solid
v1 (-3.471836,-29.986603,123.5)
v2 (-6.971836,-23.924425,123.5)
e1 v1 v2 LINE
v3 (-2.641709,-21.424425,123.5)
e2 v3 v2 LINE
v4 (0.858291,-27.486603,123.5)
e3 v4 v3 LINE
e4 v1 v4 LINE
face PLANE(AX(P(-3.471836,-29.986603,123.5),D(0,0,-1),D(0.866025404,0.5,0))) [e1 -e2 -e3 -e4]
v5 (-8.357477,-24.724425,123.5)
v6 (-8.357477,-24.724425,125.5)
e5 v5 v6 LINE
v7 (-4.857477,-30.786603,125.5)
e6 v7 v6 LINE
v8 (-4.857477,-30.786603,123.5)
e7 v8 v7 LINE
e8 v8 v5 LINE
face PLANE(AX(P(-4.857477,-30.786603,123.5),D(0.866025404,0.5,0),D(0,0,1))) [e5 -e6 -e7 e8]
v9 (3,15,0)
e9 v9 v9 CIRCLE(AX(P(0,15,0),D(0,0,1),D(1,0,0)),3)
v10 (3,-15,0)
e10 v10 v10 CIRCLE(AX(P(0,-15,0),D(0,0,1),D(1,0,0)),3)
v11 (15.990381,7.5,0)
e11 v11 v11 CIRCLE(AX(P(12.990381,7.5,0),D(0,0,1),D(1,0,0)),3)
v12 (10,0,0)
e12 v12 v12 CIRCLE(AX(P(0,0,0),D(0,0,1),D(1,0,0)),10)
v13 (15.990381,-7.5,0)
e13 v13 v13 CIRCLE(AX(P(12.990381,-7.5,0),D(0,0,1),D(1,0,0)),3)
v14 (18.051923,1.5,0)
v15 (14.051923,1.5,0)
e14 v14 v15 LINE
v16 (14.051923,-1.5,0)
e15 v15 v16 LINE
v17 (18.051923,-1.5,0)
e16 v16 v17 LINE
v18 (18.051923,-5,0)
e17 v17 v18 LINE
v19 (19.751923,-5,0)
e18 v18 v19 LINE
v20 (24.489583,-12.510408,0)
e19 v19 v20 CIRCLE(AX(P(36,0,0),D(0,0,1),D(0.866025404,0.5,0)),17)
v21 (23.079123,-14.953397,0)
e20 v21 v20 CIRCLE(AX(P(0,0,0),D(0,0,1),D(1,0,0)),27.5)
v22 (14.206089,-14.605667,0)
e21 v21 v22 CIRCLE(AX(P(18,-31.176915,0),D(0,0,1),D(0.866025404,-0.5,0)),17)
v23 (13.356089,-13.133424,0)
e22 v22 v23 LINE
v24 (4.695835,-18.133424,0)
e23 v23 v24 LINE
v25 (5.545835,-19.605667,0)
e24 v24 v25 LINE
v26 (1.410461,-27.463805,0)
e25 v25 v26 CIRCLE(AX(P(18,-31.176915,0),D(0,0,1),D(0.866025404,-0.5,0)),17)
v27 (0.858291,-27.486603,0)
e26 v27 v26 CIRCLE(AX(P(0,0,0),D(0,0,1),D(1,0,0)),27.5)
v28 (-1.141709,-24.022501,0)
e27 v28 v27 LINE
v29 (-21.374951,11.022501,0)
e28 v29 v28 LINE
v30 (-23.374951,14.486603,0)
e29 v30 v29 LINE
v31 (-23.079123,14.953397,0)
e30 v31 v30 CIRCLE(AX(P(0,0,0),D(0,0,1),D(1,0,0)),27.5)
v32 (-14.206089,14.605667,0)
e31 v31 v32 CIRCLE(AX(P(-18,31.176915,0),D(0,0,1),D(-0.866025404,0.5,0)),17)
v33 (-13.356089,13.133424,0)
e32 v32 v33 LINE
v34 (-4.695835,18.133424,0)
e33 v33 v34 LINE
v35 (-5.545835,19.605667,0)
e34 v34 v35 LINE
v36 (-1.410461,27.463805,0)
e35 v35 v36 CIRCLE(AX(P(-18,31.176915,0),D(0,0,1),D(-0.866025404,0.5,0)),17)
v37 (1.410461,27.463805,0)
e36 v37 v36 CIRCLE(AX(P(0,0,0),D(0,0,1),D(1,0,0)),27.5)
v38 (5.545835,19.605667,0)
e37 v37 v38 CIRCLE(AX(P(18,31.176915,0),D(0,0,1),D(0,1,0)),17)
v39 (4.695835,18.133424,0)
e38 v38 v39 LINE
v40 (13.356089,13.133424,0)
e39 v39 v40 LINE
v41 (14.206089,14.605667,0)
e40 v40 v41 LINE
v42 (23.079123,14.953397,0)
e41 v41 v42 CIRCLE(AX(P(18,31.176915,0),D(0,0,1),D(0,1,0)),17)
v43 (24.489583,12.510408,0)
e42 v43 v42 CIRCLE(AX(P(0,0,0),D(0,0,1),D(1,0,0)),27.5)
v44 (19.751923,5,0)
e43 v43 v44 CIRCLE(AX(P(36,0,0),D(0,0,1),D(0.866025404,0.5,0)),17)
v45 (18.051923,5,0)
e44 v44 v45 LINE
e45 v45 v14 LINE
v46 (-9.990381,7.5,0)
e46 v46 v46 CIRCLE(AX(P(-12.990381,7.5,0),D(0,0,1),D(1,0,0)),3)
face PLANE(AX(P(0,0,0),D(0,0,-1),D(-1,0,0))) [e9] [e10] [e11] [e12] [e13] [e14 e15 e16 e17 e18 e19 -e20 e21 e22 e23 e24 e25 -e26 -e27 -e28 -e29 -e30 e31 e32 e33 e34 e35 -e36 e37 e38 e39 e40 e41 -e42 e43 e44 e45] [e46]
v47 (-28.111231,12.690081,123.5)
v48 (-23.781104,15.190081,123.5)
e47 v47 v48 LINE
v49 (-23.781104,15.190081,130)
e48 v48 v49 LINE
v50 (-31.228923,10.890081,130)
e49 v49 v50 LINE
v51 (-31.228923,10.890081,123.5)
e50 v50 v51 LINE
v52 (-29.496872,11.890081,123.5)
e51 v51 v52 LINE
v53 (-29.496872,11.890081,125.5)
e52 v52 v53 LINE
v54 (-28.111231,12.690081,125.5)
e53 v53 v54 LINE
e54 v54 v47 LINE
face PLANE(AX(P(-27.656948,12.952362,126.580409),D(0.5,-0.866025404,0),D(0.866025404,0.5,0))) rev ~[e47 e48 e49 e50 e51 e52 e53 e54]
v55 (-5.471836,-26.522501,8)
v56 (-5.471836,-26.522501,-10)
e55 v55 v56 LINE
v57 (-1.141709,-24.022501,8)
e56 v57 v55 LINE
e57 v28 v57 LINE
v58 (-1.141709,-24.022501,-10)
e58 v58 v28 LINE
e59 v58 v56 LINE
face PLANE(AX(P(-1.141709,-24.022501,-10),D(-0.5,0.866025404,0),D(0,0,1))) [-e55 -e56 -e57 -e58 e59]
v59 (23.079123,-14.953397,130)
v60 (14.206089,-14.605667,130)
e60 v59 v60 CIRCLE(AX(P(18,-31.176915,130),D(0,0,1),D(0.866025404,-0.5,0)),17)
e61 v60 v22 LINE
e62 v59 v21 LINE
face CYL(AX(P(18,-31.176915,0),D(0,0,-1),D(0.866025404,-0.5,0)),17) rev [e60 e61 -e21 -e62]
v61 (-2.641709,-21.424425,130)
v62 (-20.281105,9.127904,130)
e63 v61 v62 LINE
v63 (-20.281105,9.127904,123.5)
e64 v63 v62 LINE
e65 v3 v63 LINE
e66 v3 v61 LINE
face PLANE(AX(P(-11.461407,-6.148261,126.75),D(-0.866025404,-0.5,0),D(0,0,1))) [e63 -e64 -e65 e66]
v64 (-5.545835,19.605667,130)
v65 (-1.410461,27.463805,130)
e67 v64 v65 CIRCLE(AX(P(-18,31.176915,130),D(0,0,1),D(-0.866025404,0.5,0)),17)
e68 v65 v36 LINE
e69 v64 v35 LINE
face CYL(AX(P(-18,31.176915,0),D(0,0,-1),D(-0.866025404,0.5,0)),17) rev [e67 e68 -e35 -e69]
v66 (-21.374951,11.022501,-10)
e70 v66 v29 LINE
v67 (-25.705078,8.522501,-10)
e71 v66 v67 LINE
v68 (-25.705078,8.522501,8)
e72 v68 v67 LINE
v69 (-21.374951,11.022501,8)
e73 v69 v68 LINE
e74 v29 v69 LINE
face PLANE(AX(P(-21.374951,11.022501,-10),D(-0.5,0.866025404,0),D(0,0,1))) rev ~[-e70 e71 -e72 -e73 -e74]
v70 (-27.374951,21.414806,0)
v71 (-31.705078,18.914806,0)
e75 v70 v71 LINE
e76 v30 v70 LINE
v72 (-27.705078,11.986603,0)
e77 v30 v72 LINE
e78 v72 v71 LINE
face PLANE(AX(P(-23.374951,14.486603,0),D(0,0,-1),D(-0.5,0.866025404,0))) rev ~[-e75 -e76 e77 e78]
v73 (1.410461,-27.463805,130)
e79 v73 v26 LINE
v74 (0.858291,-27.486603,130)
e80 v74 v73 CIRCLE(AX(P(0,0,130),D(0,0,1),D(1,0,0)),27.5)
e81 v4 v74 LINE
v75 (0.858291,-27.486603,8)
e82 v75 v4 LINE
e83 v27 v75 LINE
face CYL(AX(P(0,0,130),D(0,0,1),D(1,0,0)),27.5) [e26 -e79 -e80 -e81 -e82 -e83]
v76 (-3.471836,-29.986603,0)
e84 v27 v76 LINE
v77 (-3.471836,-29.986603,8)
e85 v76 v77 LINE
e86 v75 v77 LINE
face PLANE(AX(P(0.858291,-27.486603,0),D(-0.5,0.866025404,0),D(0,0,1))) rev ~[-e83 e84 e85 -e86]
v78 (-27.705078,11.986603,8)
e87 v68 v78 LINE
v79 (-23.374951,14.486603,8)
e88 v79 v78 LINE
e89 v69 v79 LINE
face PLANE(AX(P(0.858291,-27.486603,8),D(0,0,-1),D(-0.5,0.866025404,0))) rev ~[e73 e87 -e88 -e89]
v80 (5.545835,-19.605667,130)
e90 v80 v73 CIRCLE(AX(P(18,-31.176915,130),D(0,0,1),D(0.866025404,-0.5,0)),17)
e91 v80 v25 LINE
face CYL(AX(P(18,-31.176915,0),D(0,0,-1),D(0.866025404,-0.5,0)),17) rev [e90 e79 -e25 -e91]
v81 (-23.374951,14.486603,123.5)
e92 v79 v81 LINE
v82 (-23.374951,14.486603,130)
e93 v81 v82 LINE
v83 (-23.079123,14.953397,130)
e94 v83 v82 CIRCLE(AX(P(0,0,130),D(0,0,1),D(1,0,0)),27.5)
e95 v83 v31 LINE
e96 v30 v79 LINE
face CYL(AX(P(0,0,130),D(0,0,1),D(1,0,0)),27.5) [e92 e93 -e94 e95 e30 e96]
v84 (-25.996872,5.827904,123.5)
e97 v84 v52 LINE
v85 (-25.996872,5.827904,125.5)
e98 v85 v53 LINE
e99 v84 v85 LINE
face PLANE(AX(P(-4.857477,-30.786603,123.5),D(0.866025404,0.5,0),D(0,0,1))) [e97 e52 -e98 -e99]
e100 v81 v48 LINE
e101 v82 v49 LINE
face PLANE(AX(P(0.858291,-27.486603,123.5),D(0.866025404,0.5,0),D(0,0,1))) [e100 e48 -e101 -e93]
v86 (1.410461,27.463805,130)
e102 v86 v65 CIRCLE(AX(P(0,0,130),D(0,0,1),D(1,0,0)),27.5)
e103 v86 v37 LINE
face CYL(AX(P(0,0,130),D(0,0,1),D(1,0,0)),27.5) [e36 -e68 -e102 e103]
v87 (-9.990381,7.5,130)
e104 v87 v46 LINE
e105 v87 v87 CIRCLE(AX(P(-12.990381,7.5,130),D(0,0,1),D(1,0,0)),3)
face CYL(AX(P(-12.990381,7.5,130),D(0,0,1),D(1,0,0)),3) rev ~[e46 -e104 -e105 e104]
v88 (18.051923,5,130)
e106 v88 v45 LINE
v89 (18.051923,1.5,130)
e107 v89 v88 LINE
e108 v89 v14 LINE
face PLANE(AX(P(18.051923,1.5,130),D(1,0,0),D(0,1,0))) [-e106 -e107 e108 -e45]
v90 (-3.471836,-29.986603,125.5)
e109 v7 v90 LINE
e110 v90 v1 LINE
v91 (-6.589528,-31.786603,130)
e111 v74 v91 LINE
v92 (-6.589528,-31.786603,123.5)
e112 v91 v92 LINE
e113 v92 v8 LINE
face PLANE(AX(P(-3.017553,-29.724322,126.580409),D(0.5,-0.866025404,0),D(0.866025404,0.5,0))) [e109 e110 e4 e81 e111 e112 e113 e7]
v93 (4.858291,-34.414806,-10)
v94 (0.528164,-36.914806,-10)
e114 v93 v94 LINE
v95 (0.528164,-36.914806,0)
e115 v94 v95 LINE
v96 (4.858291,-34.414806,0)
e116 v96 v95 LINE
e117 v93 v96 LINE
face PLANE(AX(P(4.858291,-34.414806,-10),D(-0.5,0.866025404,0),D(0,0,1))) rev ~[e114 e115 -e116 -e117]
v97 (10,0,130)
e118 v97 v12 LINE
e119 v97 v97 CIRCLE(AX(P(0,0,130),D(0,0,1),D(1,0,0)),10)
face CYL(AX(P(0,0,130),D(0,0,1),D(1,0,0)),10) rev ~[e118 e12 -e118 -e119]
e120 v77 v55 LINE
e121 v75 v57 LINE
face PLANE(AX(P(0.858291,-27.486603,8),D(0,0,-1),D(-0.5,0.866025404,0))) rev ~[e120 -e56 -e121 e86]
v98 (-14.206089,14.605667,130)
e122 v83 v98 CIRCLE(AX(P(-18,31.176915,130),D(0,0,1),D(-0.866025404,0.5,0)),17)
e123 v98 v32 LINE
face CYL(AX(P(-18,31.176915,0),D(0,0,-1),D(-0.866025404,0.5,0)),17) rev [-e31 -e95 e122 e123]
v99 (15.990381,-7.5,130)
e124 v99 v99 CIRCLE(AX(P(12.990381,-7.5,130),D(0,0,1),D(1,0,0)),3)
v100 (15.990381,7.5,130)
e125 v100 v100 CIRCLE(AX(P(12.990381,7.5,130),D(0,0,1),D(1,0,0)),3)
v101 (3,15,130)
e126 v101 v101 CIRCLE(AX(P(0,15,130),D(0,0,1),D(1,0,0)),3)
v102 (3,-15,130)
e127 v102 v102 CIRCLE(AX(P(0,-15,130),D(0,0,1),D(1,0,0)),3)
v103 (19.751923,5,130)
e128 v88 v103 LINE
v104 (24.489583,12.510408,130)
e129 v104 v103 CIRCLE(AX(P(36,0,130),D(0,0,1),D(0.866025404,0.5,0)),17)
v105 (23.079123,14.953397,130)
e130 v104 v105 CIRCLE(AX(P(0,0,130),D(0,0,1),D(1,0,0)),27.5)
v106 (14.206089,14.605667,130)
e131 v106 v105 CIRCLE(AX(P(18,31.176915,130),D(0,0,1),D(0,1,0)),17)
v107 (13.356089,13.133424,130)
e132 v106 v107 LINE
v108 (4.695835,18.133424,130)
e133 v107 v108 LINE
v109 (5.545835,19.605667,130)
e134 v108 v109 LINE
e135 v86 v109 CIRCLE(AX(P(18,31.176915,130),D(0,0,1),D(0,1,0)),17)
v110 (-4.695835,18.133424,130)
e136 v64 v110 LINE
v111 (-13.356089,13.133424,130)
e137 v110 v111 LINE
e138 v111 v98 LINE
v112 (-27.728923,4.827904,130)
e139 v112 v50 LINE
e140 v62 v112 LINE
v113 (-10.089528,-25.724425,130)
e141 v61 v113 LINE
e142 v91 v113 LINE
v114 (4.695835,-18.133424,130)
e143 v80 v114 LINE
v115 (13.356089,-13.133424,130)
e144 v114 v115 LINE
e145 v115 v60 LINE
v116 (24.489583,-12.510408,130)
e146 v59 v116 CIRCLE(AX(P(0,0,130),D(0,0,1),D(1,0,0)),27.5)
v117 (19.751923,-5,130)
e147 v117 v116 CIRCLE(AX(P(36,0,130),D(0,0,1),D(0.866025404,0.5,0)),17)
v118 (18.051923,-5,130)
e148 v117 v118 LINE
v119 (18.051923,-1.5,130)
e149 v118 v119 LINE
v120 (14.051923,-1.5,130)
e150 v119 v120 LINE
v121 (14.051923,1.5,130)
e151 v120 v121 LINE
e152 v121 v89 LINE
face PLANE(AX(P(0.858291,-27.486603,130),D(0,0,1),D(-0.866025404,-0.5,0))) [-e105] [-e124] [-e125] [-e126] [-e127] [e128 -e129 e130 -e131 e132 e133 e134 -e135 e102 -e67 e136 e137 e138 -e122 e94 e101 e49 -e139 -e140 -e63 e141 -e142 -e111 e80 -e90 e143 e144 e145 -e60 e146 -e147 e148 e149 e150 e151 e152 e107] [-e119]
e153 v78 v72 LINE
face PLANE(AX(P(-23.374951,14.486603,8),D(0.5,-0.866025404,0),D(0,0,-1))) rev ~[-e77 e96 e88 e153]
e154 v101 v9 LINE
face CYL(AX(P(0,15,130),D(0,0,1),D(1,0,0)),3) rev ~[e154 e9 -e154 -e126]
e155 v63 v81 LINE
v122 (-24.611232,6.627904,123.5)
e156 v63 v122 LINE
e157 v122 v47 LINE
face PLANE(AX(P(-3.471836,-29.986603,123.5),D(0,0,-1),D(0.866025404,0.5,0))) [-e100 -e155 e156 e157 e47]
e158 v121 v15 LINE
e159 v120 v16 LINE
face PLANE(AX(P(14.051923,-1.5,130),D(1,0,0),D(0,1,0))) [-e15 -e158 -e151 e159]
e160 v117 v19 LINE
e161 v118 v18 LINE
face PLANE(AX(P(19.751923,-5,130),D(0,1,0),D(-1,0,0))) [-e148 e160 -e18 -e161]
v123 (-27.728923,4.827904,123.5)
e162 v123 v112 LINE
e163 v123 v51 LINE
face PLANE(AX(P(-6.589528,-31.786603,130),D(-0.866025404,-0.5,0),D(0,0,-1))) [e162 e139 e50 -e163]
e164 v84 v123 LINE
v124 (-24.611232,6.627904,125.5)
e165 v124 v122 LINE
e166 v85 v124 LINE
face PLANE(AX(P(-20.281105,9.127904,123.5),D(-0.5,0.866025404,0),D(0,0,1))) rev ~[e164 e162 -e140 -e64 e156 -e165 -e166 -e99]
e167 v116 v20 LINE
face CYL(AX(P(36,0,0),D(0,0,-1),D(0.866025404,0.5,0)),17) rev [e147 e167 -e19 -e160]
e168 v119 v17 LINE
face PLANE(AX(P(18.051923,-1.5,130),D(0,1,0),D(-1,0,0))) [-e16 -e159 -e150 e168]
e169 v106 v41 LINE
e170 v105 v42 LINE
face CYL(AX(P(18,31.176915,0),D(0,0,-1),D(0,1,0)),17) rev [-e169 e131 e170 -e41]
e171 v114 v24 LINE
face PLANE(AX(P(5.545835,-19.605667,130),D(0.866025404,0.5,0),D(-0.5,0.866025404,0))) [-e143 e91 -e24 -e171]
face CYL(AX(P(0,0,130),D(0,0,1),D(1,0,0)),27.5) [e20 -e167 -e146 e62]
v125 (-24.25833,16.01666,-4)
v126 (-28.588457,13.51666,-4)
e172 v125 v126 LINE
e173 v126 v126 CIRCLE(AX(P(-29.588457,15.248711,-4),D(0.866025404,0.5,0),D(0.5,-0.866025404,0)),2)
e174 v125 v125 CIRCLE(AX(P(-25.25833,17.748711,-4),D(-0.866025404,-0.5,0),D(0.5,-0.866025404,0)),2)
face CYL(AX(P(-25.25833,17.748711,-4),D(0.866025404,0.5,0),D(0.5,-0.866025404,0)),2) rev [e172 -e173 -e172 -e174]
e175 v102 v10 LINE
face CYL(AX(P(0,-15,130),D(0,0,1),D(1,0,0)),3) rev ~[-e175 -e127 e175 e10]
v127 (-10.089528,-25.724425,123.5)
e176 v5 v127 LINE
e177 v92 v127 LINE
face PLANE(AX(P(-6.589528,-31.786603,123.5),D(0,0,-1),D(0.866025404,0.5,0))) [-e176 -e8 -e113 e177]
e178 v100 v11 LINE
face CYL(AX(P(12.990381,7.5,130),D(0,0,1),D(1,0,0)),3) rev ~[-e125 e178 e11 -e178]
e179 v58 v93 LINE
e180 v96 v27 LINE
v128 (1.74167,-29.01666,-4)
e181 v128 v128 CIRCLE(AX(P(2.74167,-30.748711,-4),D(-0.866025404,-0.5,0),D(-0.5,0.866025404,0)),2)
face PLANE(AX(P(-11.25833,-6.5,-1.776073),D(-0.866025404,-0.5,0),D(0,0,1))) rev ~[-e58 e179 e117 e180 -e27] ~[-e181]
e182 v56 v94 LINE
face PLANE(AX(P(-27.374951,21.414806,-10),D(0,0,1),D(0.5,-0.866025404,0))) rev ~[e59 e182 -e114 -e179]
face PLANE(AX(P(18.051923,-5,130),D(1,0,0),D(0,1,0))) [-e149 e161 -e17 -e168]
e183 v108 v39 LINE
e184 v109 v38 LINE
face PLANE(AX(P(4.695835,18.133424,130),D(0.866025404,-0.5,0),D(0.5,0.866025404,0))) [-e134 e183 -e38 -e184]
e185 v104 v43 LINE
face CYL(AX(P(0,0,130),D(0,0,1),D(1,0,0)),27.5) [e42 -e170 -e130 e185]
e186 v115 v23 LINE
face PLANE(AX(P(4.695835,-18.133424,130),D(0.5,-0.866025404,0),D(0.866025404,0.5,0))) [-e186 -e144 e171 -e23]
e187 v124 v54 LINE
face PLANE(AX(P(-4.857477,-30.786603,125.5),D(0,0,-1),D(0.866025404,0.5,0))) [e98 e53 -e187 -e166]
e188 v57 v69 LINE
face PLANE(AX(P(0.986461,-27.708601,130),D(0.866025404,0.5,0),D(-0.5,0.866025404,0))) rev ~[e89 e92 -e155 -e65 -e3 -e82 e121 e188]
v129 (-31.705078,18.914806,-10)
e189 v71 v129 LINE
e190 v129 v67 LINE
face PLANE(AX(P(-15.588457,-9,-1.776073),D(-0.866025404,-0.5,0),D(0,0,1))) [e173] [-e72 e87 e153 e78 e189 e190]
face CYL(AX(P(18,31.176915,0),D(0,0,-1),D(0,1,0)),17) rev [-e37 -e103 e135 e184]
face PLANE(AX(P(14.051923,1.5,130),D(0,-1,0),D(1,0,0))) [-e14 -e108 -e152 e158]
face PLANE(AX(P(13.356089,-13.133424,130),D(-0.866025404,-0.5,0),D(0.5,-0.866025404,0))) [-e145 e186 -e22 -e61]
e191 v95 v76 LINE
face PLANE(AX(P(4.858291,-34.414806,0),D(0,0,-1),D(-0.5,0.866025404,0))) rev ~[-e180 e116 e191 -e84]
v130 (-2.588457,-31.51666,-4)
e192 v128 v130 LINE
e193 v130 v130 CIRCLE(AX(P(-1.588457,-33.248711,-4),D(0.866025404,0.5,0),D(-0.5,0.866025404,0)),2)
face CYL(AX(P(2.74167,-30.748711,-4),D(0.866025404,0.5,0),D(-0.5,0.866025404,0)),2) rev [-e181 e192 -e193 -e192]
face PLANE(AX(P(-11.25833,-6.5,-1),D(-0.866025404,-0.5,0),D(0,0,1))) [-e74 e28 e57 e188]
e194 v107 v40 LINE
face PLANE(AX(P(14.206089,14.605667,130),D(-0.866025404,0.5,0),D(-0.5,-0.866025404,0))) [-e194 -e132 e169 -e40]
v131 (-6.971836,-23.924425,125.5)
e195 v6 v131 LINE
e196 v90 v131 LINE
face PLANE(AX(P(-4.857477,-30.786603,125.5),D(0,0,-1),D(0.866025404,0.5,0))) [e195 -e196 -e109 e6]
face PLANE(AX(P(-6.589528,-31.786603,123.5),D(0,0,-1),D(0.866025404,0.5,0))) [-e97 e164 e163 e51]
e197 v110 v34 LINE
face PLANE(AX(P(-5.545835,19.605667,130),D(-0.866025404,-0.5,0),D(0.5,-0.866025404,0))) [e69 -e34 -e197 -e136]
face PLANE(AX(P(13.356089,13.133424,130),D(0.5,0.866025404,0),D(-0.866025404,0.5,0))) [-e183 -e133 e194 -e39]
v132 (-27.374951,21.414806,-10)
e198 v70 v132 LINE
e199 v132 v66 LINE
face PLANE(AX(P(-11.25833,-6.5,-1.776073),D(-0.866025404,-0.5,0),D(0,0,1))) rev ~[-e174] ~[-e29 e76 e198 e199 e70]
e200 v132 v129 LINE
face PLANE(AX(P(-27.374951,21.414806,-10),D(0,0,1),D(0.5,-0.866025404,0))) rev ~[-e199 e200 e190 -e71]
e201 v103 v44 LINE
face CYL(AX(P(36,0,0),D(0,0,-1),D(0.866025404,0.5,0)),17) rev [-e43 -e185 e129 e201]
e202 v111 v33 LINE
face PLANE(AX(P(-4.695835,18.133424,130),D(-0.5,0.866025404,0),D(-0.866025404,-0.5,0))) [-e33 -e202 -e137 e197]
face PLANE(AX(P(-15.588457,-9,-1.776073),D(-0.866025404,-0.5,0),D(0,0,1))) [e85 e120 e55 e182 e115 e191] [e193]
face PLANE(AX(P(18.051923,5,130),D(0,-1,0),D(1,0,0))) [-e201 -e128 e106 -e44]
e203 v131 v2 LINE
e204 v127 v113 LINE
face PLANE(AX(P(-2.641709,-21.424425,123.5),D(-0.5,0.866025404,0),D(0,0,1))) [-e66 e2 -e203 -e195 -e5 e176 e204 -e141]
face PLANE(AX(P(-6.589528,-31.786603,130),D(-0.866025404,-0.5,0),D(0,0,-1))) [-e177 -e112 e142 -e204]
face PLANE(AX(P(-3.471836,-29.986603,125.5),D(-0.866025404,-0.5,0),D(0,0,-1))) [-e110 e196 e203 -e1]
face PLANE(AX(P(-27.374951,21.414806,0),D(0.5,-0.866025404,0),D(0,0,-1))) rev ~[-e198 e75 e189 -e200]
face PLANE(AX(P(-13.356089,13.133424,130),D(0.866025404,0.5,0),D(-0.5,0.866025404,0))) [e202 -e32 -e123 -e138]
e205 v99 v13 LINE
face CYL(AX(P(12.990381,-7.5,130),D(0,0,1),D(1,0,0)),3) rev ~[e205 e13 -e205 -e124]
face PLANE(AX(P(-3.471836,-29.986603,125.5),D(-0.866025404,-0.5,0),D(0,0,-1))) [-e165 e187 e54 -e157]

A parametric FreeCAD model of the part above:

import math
import FreeCAD as App
import Part
import Sketcher
Q = App.Units.Quantity

doc = App.newDocument("Part")
body = doc.addObject("PartDesign::Body", "Body")

# Sketch on XY plane
sketch1 = body.newObject("Sketcher::SketchObject", "Sketch")
sketch1.AttachmentSupport = (doc.getObject("XY_Plane"), [""])
sketch1.MapMode = "FlatFace"
sketch1.addGeometry([
    Part.LineSegment(App.Vector(-18, -48.2, 0), App.Vector(-18, -51.2, 0)),  # 0
    Part.ArcOfCircle(Part.Circle(App.Vector(-18, -31.2, 0), App.Vector(0, 0, 1), 20), math.radians(-90), math.radians(-26)),  # 1
    Part.ArcOfCircle(Part.Circle(App.Vector(18, -31.2, 0), App.Vector(0, 0, 1), 20), math.radians(-154), math.radians(-90)),  # 2
    Part.LineSegment(App.Vector(18, -51.2, 0), App.Vector(18, -48.2, 0)),  # 3
    Part.ArcOfCircle(Part.Circle(App.Vector(18, -31.2, 0), App.Vector(0, 0, 1), 17), math.radians(-30), math.radians(270)),  # 4
    Part.LineSegment(App.Vector(32.7, -39.7, 0), App.Vector(35.3, -41.2, 0)),  # 5
    Part.ArcOfCircle(Part.Circle(App.Vector(18, -31.2, 0), App.Vector(0, 0, 1), 20), math.radians(-30), math.radians(34)),  # 6
    Part.ArcOfCircle(Part.Circle(App.Vector(36, 0, 0), App.Vector(0, 0, 1), 20), math.radians(-94), math.radians(-30)),  # 7
    Part.LineSegment(App.Vector(53.3, -10, 0), App.Vector(50.7, -8.5, 0)),  # 8
    Part.ArcOfCircle(Part.Circle(App.Vector(36, 0, 0), App.Vector(0, 0, 1), 17), math.radians(30), math.radians(330)),  # 9
    Part.LineSegment(App.Vector(50.7, 8.5, 0), App.Vector(53.3, 10, 0)),  # 10
    Part.ArcOfCircle(Part.Circle(App.Vector(36, 0, 0), App.Vector(0, 0, 1), 20), math.radians(30), math.radians(94)),  # 11
    Part.ArcOfCircle(Part.Circle(App.Vector(18, 31.2, 0), App.Vector(0, 0, 1), 20), math.radians(-34), math.radians(30)),  # 12
    Part.LineSegment(App.Vector(35.3, 41.2, 0), App.Vector(32.7, 39.7, 0)),  # 13
    Part.ArcOfCircle(Part.Circle(App.Vector(18, 31.2, 0), App.Vector(0, 0, 1), 17), math.radians(90), math.radians(390)),  # 14
    Part.LineSegment(App.Vector(18, 48.2, 0), App.Vector(18, 51.2, 0)),  # 15
    Part.ArcOfCircle(Part.Circle(App.Vector(18, 31.2, 0), App.Vector(0, 0, 1), 20), math.radians(90), math.radians(154)),  # 16
    Part.ArcOfCircle(Part.Circle(App.Vector(-18, 31.2, 0), App.Vector(0, 0, 1), 20), math.radians(26), math.radians(90)),  # 17
    Part.LineSegment(App.Vector(-18, 51.2, 0), App.Vector(-18, 48.2, 0)),  # 18
    Part.ArcOfCircle(Part.Circle(App.Vector(-18, 31.2, 0), App.Vector(0, 0, 1), 17), math.radians(150), math.radians(450)),  # 19
    Part.LineSegment(App.Vector(-32.7, 39.7, 0), App.Vector(-35.3, 41.2, 0)),  # 20
    Part.ArcOfCircle(Part.Circle(App.Vector(-18, 31.2, 0), App.Vector(0, 0, 1), 20), math.radians(150), math.radians(214)),  # 21
    Part.ArcOfCircle(Part.Circle(App.Vector(-36, 0, 0), App.Vector(0, 0, 1), 20), math.radians(86), math.radians(150)),  # 22
    Part.LineSegment(App.Vector(-53.3, 10, 0), App.Vector(-50.7, 8.5, 0)),  # 23
    Part.ArcOfCircle(Part.Circle(App.Vector(-36, 0, 0), App.Vector(0, 0, 1), 17), math.radians(-150), math.radians(150)),  # 24
    Part.LineSegment(App.Vector(-50.7, -8.5, 0), App.Vector(-53.3, -10, 0)),  # 25
    Part.ArcOfCircle(Part.Circle(App.Vector(-36, 0, 0), App.Vector(0, 0, 1), 20), math.radians(-150), math.radians(-86)),  # 26
    Part.ArcOfCircle(Part.Circle(App.Vector(-18, -31.2, 0), App.Vector(0, 0, 1), 20), math.radians(146), math.radians(210)),  # 27
    Part.LineSegment(App.Vector(-35.3, -41.2, 0), App.Vector(-32.7, -39.7, 0)),  # 28
    Part.ArcOfCircle(Part.Circle(App.Vector(-18, -31.2, 0), App.Vector(0, 0, 1), 17), math.radians(-90), math.radians(210)),  # 29
], False)
sketch1.addConstraint([
    Sketcher.Constraint("Coincident", 0, 2, 1, 1),
    Sketcher.Constraint("Coincident", 1, 2, 2, 1),
    Sketcher.Constraint("Coincident", 2, 2, 3, 1),
    Sketcher.Constraint("Coincident", 3, 2, 4, 2),
    Sketcher.Constraint("Coincident", 4, 1, 5, 1),
    Sketcher.Constraint("Coincident", 5, 2, 6, 1),
    Sketcher.Constraint("Coincident", 6, 2, 7, 1),
    Sketcher.Constraint("Coincident", 7, 2, 8, 1),
    Sketcher.Constraint("Coincident", 8, 2, 9, 2),
    Sketcher.Constraint("Coincident", 9, 1, 10, 1),
    Sketcher.Constraint("Coincident", 10, 2, 11, 1),
    Sketcher.Constraint("Coincident", 11, 2, 12, 1),
    Sketcher.Constraint("Coincident", 12, 2, 13, 1),
    Sketcher.Constraint("Coincident", 13, 2, 14, 2),
    Sketcher.Constraint("Coincident", 14, 1, 15, 1),
    Sketcher.Constraint("Coincident", 15, 2, 16, 1),
    Sketcher.Constraint("Coincident", 16, 2, 17, 1),
    Sketcher.Constraint("Coincident", 17, 2, 18, 1),
    Sketcher.Constraint("Coincident", 18, 2, 19, 2),
    Sketcher.Constraint("Coincident", 19, 1, 20, 1),
    Sketcher.Constraint("Coincident", 20, 2, 21, 1),
    Sketcher.Constraint("Coincident", 21, 2, 22, 1),
    Sketcher.Constraint("Coincident", 22, 2, 23, 1),
    Sketcher.Constraint("Coincident", 23, 2, 24, 2),
    Sketcher.Constraint("Coincident", 24, 1, 25, 1),
    Sketcher.Constraint("Coincident", 25, 2, 26, 1),
    Sketcher.Constraint("Coincident", 26, 2, 27, 1),
    Sketcher.Constraint("Coincident", 27, 2, 28, 1),
    Sketcher.Constraint("Coincident", 28, 2, 29, 2),
    Sketcher.Constraint("Coincident", 29, 1, 0, 1),
    Sketcher.Constraint("Vertical", 0),
    Sketcher.Constraint("Vertical", 3),
    Sketcher.Constraint("Vertical", 15),
    Sketcher.Constraint("Vertical", 18),
    Sketcher.Constraint("Coincident", 4, 3, 2, 3),
    Sketcher.Constraint("Coincident", 6, 3, 2, 3),
    Sketcher.Constraint("Coincident", 9, 3, 7, 3),
    Sketcher.Constraint("Coincident", 11, 3, 7, 3),
    Sketcher.Constraint("Coincident", 14, 3, 12, 3),
    Sketcher.Constraint("Coincident", 16, 3, 12, 3),
    Sketcher.Constraint("Coincident", 19, 3, 17, 3),
    Sketcher.Constraint("Coincident", 21, 3, 17, 3),
    Sketcher.Constraint("Coincident", 24, 3, 22, 3),
    Sketcher.Constraint("Coincident", 26, 3, 22, 3),
    Sketcher.Constraint("Coincident", 27, 3, 1, 3),
    Sketcher.Constraint("Coincident", 29, 3, 1, 3),
    Sketcher.Constraint("Equal", 1, 2),
    Sketcher.Constraint("Equal", 2, 6),
    Sketcher.Constraint("Equal", 6, 7),
    Sketcher.Constraint("Equal", 4, 9),
    Sketcher.Constraint("Equal", 7, 11),
    Sketcher.Constraint("Equal", 11, 12),
    Sketcher.Constraint("Equal", 9, 14),
    Sketcher.Constraint("Equal", 12, 16),
    Sketcher.Constraint("Equal", 16, 17),
    Sketcher.Constraint("Equal", 14, 19),
    Sketcher.Constraint("Equal", 17, 21),
    Sketcher.Constraint("Equal", 21, 22),
    Sketcher.Constraint("Equal", 19, 24),
    Sketcher.Constraint("Equal", 22, 26),
    Sketcher.Constraint("Equal", 26, 27),
    Sketcher.Constraint("Equal", 24, 29),
    Sketcher.Constraint("Symmetric", 1, 3, 12, 3, -1, 1),
    Sketcher.Constraint("Symmetric", 2, 3, 17, 3, -1, 1),
    Sketcher.Constraint("Symmetric", 7, 3, 22, 3, -1, 1),
    Sketcher.Constraint("Symmetric", 1, 3, 2, 3, -2),
    Sketcher.Constraint("Symmetric", 10, 2, 22, 2, -2),
    Sketcher.Constraint("Parallel", 5, 8),
    Sketcher.Constraint("Parallel", 10, 13),
    Sketcher.Constraint("Parallel", 8, 20),
    Sketcher.Constraint("Parallel", 20, 23),
    Sketcher.Constraint("Parallel", 13, 25),
    Sketcher.Constraint("Parallel", 25, 28),
    Sketcher.Constraint("Horizontal", 13, 2, 19, 1),
    Sketcher.Constraint("Horizontal", 12, 2, 20, 2),
    Sketcher.Constraint("Horizontal", 8, 2, 24, 1),
    Sketcher.Constraint("Horizontal", 5, 2, 27, 2),
    Sketcher.Constraint("Vertical", 29, 3, 0, 2),
    Sketcher.Constraint("Vertical", 16, 3, 2, 2),
    Sketcher.Constraint("Vertical", 8, 2, 9, 1),
    Sketcher.Constraint("Vertical", 5, 2, 12, 2),
    Sketcher.Constraint("Vertical", 3, 2, 14, 1),
    Sketcher.Constraint("Vertical", 0, 2, 17, 2),
    Sketcher.Constraint("Radius", 1, 20.0),
    Sketcher.Constraint("Radius", 4, 17.0),
    Sketcher.Constraint("Angle", 5, Q("-30 deg")),
    Sketcher.Constraint("DistanceX", 1, 3, -1, 1, 18.0),
    Sketcher.Constraint("DistanceX", -1, 1, 7, 3, 36.0),
    Sketcher.Constraint("DistanceY", 7, 2, -1, 1, 10.0),
    Sketcher.Constraint("DistanceY", 3, 2, 5, 2, 7.0),
    Sketcher.Constraint("DistanceY", 2, 3, 12, 3, 62.353829),
])
pad1 = body.newObject("PartDesign::Pad", "Pad")
pad1.Profile = sketch1
pad1.Length = 130

# Sketch on XY plane
sketch2 = body.newObject("Sketcher::SketchObject", "Sketch001")
sketch2.AttachmentSupport = (doc.getObject("XY_Plane"), [""])
sketch2.MapMode = "FlatFace"
sketch2.AttachmentOffset = App.Placement(App.Vector(0, 0, 130), App.Rotation())
sketch2.addGeometry([
    Part.Circle(App.Vector(0, 0, 0), App.Vector(0, 0, 1), 54),
    Part.Circle(App.Vector(0, 0, 0), App.Vector(0, 0, 1), 28),
], False)
sketch2.addConstraint([
    Sketcher.Constraint("Coincident", 0, 3, -1, 1),
    Sketcher.Constraint("Coincident", 1, 3, -1, 1),
    Sketcher.Constraint("Diameter", 1, 55.0),
    Sketcher.Constraint("Diameter", 0, 108.50026),
])
pocket1 = body.newObject("PartDesign::Pocket", "Pocket")
pocket1.Profile = sketch2
pocket1.Type = "ThroughAll"

# Sketch on XY plane
sketch3 = body.newObject("Sketcher::SketchObject", "Sketch002")
sketch3.AttachmentSupport = (doc.getObject("XY_Plane"), [""])
sketch3.MapMode = "FlatFace"
sketch3.AttachmentOffset = App.Placement(App.Vector(0, 0, 130), App.Rotation())
sketch3.addGeometry([
    Part.Circle(App.Vector(0, 0, 0), App.Vector(0, 0, 1), 10),  # 0
    Part.Circle(App.Vector(0, 15, 0), App.Vector(0, 0, 1), 3),  # 1
    Part.Circle(App.Vector(13, 7.5, 0), App.Vector(0, 0, 1), 3),  # 2
    Part.Circle(App.Vector(13, -7.5, 0), App.Vector(0, 0, 1), 3),  # 3
    Part.Circle(App.Vector(0, -15, 0), App.Vector(0, 0, 1), 3),  # 4
    Part.Circle(App.Vector(-13, 7.5, 0), App.Vector(0, 0, 1), 3),  # 5
    Part.LineSegment(App.Vector(5.5, -19.6, 0), App.Vector(14.2, -14.6, 0)),  # 6
    Part.LineSegment(App.Vector(14.2, -14.6, 0), App.Vector(13.4, -13.1, 0)),  # 7
    Part.LineSegment(App.Vector(13.4, -13.1, 0), App.Vector(4.7, -18.1, 0)),  # 8
    Part.LineSegment(App.Vector(4.7, -18.1, 0), App.Vector(5.5, -19.6, 0)),  # 9
    Part.LineSegment(App.Vector(19.8, 5, 0), App.Vector(18.1, 5, 0)),  # 10
    Part.LineSegment(App.Vector(18.1, 5, 0), App.Vector(18.1, 1.5, 0)),  # 11
    Part.LineSegment(App.Vector(18.1, 1.5, 0), App.Vector(14.1, 1.5, 0)),  # 12
    Part.LineSegment(App.Vector(14.1, 1.5, 0), App.Vector(14.1, -1.5, 0)),  # 13
    Part.LineSegment(App.Vector(14.1, -1.5, 0), App.Vector(18.1, -1.5, 0)),  # 14
    Part.LineSegment(App.Vector(18.1, -1.5, 0), App.Vector(18.1, -5, 0)),  # 15
    Part.LineSegment(App.Vector(18.1, -5, 0), App.Vector(19.8, -5, 0)),  # 16
    Part.LineSegment(App.Vector(19.8, -5, 0), App.Vector(19.8, 5, 0)),  # 17
    Part.LineSegment(App.Vector(-5.5, 19.6, 0), App.Vector(-14.2, 14.6, 0)),  # 18
    Part.LineSegment(App.Vector(-14.2, 14.6, 0), App.Vector(-13.4, 13.1, 0)),  # 19
    Part.LineSegment(App.Vector(-13.4, 13.1, 0), App.Vector(-4.7, 18.1, 0)),  # 20
    Part.LineSegment(App.Vector(-4.7, 18.1, 0), App.Vector(-5.5, 19.6, 0)),  # 21
    Part.LineSegment(App.Vector(14.2, 14.6, 0), App.Vector(5.5, 19.6, 0)),  # 22
    Part.LineSegment(App.Vector(5.5, 19.6, 0), App.Vector(4.7, 18.1, 0)),  # 23
    Part.LineSegment(App.Vector(4.7, 18.1, 0), App.Vector(13.4, 13.1, 0)),  # 24
    Part.LineSegment(App.Vector(13.4, 13.1, 0), App.Vector(14.2, 14.6, 0)),  # 25
    Part.LineSegment(App.Vector(1, -27.7, 0), App.Vector(-23.5, 14.7, 0)),  # 26
    Part.LineSegment(App.Vector(-23.5, 14.7, 0), App.Vector(-40.8, 4.7, 0)),  # 27
    Part.LineSegment(App.Vector(-40.8, 4.7, 0), App.Vector(-16.3, -37.7, 0)),  # 28
    Part.LineSegment(App.Vector(-16.3, -37.7, 0), App.Vector(1, -27.7, 0)),  # 29
], False)
sketch3.addConstraint([
    Sketcher.Constraint("Coincident", 6, 2, 7, 1),
    Sketcher.Constraint("Coincident", 7, 2, 8, 1),
    Sketcher.Constraint("Coincident", 8, 2, 9, 1),
    Sketcher.Constraint("Coincident", 9, 2, 6, 1),
    Sketcher.Constraint("Coincident", 10, 2, 11, 1),
    Sketcher.Constraint("Coincident", 11, 2, 12, 1),
    Sketcher.Constraint("Coincident", 12, 2, 13, 1),
    Sketcher.Constraint("Coincident", 13, 2, 14, 1),
    Sketcher.Constraint("Coincident", 14, 2, 15, 1),
    Sketcher.Constraint("Coincident", 15, 2, 16, 1),
    Sketcher.Constraint("Coincident", 16, 2, 17, 1),
    Sketcher.Constraint("Coincident", 17, 2, 10, 1),
    Sketcher.Constraint("Coincident", 18, 2, 19, 1),
    Sketcher.Constraint("Coincident", 19, 2, 20, 1),
    Sketcher.Constraint("Coincident", 20, 2, 21, 1),
    Sketcher.Constraint("Coincident", 21, 2, 18, 1),
    Sketcher.Constraint("Coincident", 22, 2, 23, 1),
    Sketcher.Constraint("Coincident", 23, 2, 24, 1),
    Sketcher.Constraint("Coincident", 24, 2, 25, 1),
    Sketcher.Constraint("Coincident", 25, 2, 22, 1),
    Sketcher.Constraint("Coincident", 26, 2, 27, 1),
    Sketcher.Constraint("Coincident", 27, 2, 28, 1),
    Sketcher.Constraint("Coincident", 28, 2, 29, 1),
    Sketcher.Constraint("Coincident", 29, 2, 26, 1),
    Sketcher.Constraint("Horizontal", 10),
    Sketcher.Constraint("Vertical", 11),
    Sketcher.Constraint("Horizontal", 12),
    Sketcher.Constraint("Vertical", 13),
    Sketcher.Constraint("Horizontal", 14),
    Sketcher.Constraint("Vertical", 15),
    Sketcher.Constraint("Horizontal", 16),
    Sketcher.Constraint("Vertical", 17),
    Sketcher.Constraint("Coincident", 0, 3, -1, 1),
    Sketcher.Constraint("Equal", 1, 2),
    Sketcher.Constraint("Equal", 2, 3),
    Sketcher.Constraint("Equal", 3, 4),
    Sketcher.Constraint("Equal", 4, 5),
    Sketcher.Constraint("Symmetric", 1, 3, 4, 3, -1, 1),
    Sketcher.Constraint("Symmetric", 3, 3, 5, 3, -1, 1),
    Sketcher.Constraint("Symmetric", 6, 2, 18, 2, -1, 1),
    Sketcher.Constraint("Symmetric", 7, 2, 19, 2, -1, 1),
    Sketcher.Constraint("Symmetric", 8, 2, 20, 2, -1, 1),
    Sketcher.Constraint("Symmetric", 9, 2, 21, 2, -1, 1),
    Sketcher.Constraint("Symmetric", 2, 3, 5, 3, -2),
    Sketcher.Constraint("Symmetric", 21, 2, 22, 2, -2),
    Sketcher.Constraint("Symmetric", 20, 2, 23, 2, -2),
    Sketcher.Constraint("Symmetric", 19, 2, 24, 2, -2),
    Sketcher.Constraint("Symmetric", 18, 2, 25, 2, -2),
    Sketcher.Constraint("Symmetric", 11, 2, 14, 2, -1),
    Sketcher.Constraint("PointOnObject", 1, 3, -2),
    Sketcher.Constraint("Perpendicular", 6, 7),
    Sketcher.Constraint("Perpendicular", 7, 8),
    Sketcher.Constraint("Perpendicular", 8, 9),
    Sketcher.Constraint("Parallel", 21, 26),
    Sketcher.Constraint("Perpendicular", 26, 27),
    Sketcher.Constraint("Perpendicular", 27, 28),
    Sketcher.Constraint("Perpendicular", 28, 29),
    Sketcher.Constraint("Equal", 11, 15),
    Sketcher.Constraint("Diameter", 0, 20.0),
    Sketcher.Constraint("Diameter", 1, 6.0),
    Sketcher.Constraint("DistanceX", 12, 2, 12, 1, 4.0),
    Sketcher.Constraint("DistanceY", 13, 2, 13, 1, 3.0),
    Sketcher.Constraint("DistanceY", 17, 1, 17, 2, 10.0),
    Sketcher.Constraint("Angle", 6, Q("30 deg")),
    Sketcher.Constraint("Distance", 6, 10.0),
    Sketcher.Constraint("Distance", 27, 20.0),
    Sketcher.Constraint("DistanceX", 10, 2, 10, 1, 1.7),
    Sketcher.Constraint("DistanceY", -1, 1, 1, 3, 15.0),
    Sketcher.Constraint("DistanceY", 3, 3, 2, 3, 15.0),
    Sketcher.Constraint("Distance", 7, 1.7),
    Sketcher.Constraint("DistanceY", -1, 1, 26, 2, 14.708601),
    Sketcher.Constraint("DistanceY", 28, 2, -1, 1, 37.708601),
    Sketcher.Constraint("DistanceX", -1, 1, 2, 3, 12.990381),
    Sketcher.Constraint("DistanceX", -1, 1, 6, 2, 14.206089),
    Sketcher.Constraint("DistanceX", 26, 2, -1, 1, 23.503122),
    Sketcher.Constraint("DistanceX", 18, 2, 12, 2, 28.258012),
    Sketcher.Constraint("DistanceY", 6, 2, -1, 1, 14.605667),
])
pocket2 = body.newObject("PartDesign::Pocket", "Pocket001")
pocket2.Profile = sketch3
pocket2.Type = "ThroughAll"

# Sketch on an angled plane
sketch4 = body.newObject("Sketcher::SketchObject", "Sketch003")
sketch4.Placement = App.Placement(App.Vector(-11.25833, -6.5, 0), App.Rotation(App.Vector(0, 0, 1), App.Vector(-0.5, 0.866025404, 0), App.Vector(-0.866025404, -0.5, 0), "ZXY"))
sketch4.addGeometry([
    Part.LineSegment(App.Vector(8, 24, 0), App.Vector(0, 24, 0)),  # 0
    Part.LineSegment(App.Vector(0, 24, 0), App.Vector(0, 32, 0)),  # 1
    Part.LineSegment(App.Vector(0, 32, 0), App.Vector(-10, 32, 0)),  # 2
    Part.LineSegment(App.Vector(-10, 32, 0), App.Vector(-10, -32, 0)),  # 3
    Part.LineSegment(App.Vector(-10, -32, 0), App.Vector(0, -32, 0)),  # 4
    Part.LineSegment(App.Vector(0, -32, 0), App.Vector(0, -24, 0)),  # 5
    Part.LineSegment(App.Vector(0, -24, 0), App.Vector(8, -24, 0)),  # 6
    Part.LineSegment(App.Vector(8, -24, 0), App.Vector(8, 24, 0)),  # 7
], False)
sketch4.addConstraint([
    Sketcher.Constraint("Coincident", 0, 2, 1, 1),
    Sketcher.Constraint("Coincident", 1, 2, 2, 1),
    Sketcher.Constraint("Coincident", 2, 2, 3, 1),
    Sketcher.Constraint("Coincident", 3, 2, 4, 1),
    Sketcher.Constraint("Coincident", 4, 2, 5, 1),
    Sketcher.Constraint("Coincident", 5, 2, 6, 1),
    Sketcher.Constraint("Coincident", 6, 2, 7, 1),
    Sketcher.Constraint("Coincident", 7, 2, 0, 1),
    Sketcher.Constraint("Horizontal", 0),
    Sketcher.Constraint("Vertical", 1),
    Sketcher.Constraint("Horizontal", 2),
    Sketcher.Constraint("Vertical", 3),
    Sketcher.Constraint("Horizontal", 4),
    Sketcher.Constraint("Vertical", 5),
    Sketcher.Constraint("Horizontal", 6),
    Sketcher.Constraint("Vertical", 7),
    Sketcher.Constraint("Symmetric", 1, 2, 4, 2, -1, 1),
    Sketcher.Constraint("Symmetric", 0, 2, 5, 2, -1),
    Sketcher.Constraint("Equal", 6, 1),
    Sketcher.Constraint("DistanceX", 0, 2, 0, 1, 8.0),
    Sketcher.Constraint("DistanceX", 2, 2, 2, 1, 10.0),
    Sketcher.Constraint("DistanceY", 3, 2, 3, 1, 64.466483),
])
pad2 = body.newObject("PartDesign::Pad", "Pad001")
pad2.Profile = sketch4
pad2.Length = 5

# Sketch on an angled plane
sketch5 = body.newObject("Sketcher::SketchObject", "Sketch004")
sketch5.Placement = App.Placement(App.Vector(-11.25833, -6.5, 0), App.Rotation(App.Vector(0, 0, 1), App.Vector(-0.5, 0.866025404, 0), App.Vector(-0.866025404, -0.5, 0), "ZXY"))
sketch5.addGeometry([
    Part.Circle(App.Vector(-4, 28, 0), App.Vector(0, 0, 1), 2),
    Part.Circle(App.Vector(-4, -28, 0), App.Vector(0, 0, 1), 2),
], False)
sketch5.addConstraint([
    Sketcher.Constraint("Equal", 0, 1),
    Sketcher.Constraint("Symmetric", 0, 3, 1, 3, -1),
    Sketcher.Constraint("Diameter", 0, 4.0),
    Sketcher.Constraint("DistanceX", 0, 3, -1, 1, 4.0),
    Sketcher.Constraint("DistanceY", -1, 1, 0, 3, 28.0),
])
pocket3 = body.newObject("PartDesign::Pocket", "Pocket002")
pocket3.Profile = sketch5
pocket3.Type = "ThroughAll"
pocket3.Reversed = True

# Sketch on an angled plane
sketch6 = body.newObject("Sketcher::SketchObject", "Sketch005")
sketch6.Placement = App.Placement(App.Vector(12.116621, -20.986603, 0), App.Rotation(App.Vector(0.866025404, 0.5, 0), App.Vector(0, 0, 1), App.Vector(0.5, -0.866025404, 0), "ZXY"))
sketch6.addGeometry([
    Part.LineSegment(App.Vector(-13, 130, 0), App.Vector(-21.6, 130, 0)),  # 0
    Part.LineSegment(App.Vector(-21.6, 130, 0), App.Vector(-21.6, 123.5, 0)),  # 1
    Part.LineSegment(App.Vector(-21.6, 123.5, 0), App.Vector(-19.6, 123.5, 0)),  # 2
    Part.LineSegment(App.Vector(-19.6, 123.5, 0), App.Vector(-19.6, 125.5, 0)),  # 3
    Part.LineSegment(App.Vector(-19.6, 125.5, 0), App.Vector(-18, 125.5, 0)),  # 4
    Part.LineSegment(App.Vector(-18, 125.5, 0), App.Vector(-18, 123.5, 0)),  # 5
    Part.LineSegment(App.Vector(-18, 123.5, 0), App.Vector(-13, 123.5, 0)),  # 6
    Part.LineSegment(App.Vector(-13, 123.5, 0), App.Vector(-13, 130, 0)),  # 7
], False)
sketch6.addConstraint([
    Sketcher.Constraint("Coincident", 0, 2, 1, 1),
    Sketcher.Constraint("Coincident", 1, 2, 2, 1),
    Sketcher.Constraint("Coincident", 2, 2, 3, 1),
    Sketcher.Constraint("Coincident", 3, 2, 4, 1),
    Sketcher.Constraint("Coincident", 4, 2, 5, 1),
    Sketcher.Constraint("Coincident", 5, 2, 6, 1),
    Sketcher.Constraint("Coincident", 6, 2, 7, 1),
    Sketcher.Constraint("Coincident", 7, 2, 0, 1),
    Sketcher.Constraint("Horizontal", 0),
    Sketcher.Constraint("Vertical", 1),
    Sketcher.Constraint("Horizontal", 2),
    Sketcher.Constraint("Vertical", 3),
    Sketcher.Constraint("Horizontal", 4),
    Sketcher.Constraint("Vertical", 5),
    Sketcher.Constraint("Horizontal", 6),
    Sketcher.Constraint("Vertical", 7),
    Sketcher.Constraint("Horizontal", 2, 2, 5, 2),
    Sketcher.Constraint("Equal", 2, 3),
    Sketcher.Constraint("DistanceX", 2, 1, 2, 2, 2.0),
    Sketcher.Constraint("DistanceX", 6, 1, 6, 2, 5.0),
    Sketcher.Constraint("DistanceX", 0, 2, 0, 1, 8.6),
    Sketcher.Constraint("DistanceY", 1, 2, 1, 1, 6.5),
    Sketcher.Constraint("DistanceY", -1, 1, 0, 2, 130.0),
    Sketcher.Constraint("DistanceX", 4, 2, -1, 1, 18.0),
])
pad3 = body.newObject("PartDesign::Pad", "Pad002")
pad3.Profile = sketch6
pad3.Length = 49.27879
pad3.Reversed = True

# Sketch on an angled plane
sketch7 = body.newObject("Sketcher::SketchObject", "Sketch006")
sketch7.Placement = App.Placement(App.Vector(-11.25833, -6.5, 0), App.Rotation(App.Vector(0, 0, 1), App.Vector(-0.5, 0.866025404, 0), App.Vector(-0.866025404, -0.5, 0), "ZXY"))
sketch7.addGeometry([
    Part.LineSegment(App.Vector(124, 18, 0), App.Vector(124, -17, 0)),  # 0
    Part.LineSegment(App.Vector(124, -17, 0), App.Vector(130, -17, 0)),  # 1
    Part.LineSegment(App.Vector(130, -17, 0), App.Vector(130, 18, 0)),  # 2
    Part.LineSegment(App.Vector(130, 18, 0), App.Vector(124, 18, 0)),  # 3
    Part.LineSegment(App.Vector(-10, 20, 0), App.Vector(-10, -20, 0)),  # 4
    Part.LineSegment(App.Vector(-10, -20, 0), App.Vector(8, -20, 0)),  # 5
    Part.LineSegment(App.Vector(8, -20, 0), App.Vector(8, 20, 0)),  # 6
    Part.LineSegment(App.Vector(8, 20, 0), App.Vector(-10, 20, 0)),  # 7
], False)
sketch7.addConstraint([
    Sketcher.Constraint("Coincident", 0, 2, 1, 1),
    Sketcher.Constraint("Coincident", 1, 2, 2, 1),
    Sketcher.Constraint("Coincident", 2, 2, 3, 1),
    Sketcher.Constraint("Coincident", 3, 2, 0, 1),
    Sketcher.Constraint("Coincident", 4, 2, 5, 1),
    Sketcher.Constraint("Coincident", 5, 2, 6, 1),
    Sketcher.Constraint("Coincident", 6, 2, 7, 1),
    Sketcher.Constraint("Coincident", 7, 2, 4, 1),
    Sketcher.Constraint("Vertical", 0),
    Sketcher.Constraint("Horizontal", 1),
    Sketcher.Constraint("Vertical", 2),
    Sketcher.Constraint("Horizontal", 3),
    Sketcher.Constraint("Vertical", 4),
    Sketcher.Constraint("Horizontal", 5),
    Sketcher.Constraint("Vertical", 6),
    Sketcher.Constraint("Horizontal", 7),
    Sketcher.Constraint("DistanceX", 5, 1, 5, 2, 18.0),
    Sketcher.Constraint("DistanceX", 1, 1, 1, 2, 6.5),
    Sketcher.Constraint("DistanceX", -1, 1, 1, 2, 130.0),
    Sketcher.Constraint("DistanceX", 4, 2, -1, 1, 10.0),
    Sketcher.Constraint("DistanceY", 4, 2, 0, 2, 3.0),
    Sketcher.Constraint("DistanceY", 0, 2, 0, 1, 35.27879),
    Sketcher.Constraint("DistanceY", 4, 2, 4, 1, 40.466483),
    Sketcher.Constraint("DistanceY", 0, 2, -1, 1, 17.233242),
])
pocket4 = body.newObject("PartDesign::Pocket", "Pocket003")
pocket4.Profile = sketch7
pocket4.Length = 8.6
pocket4.Reversed = True

doc.recompute()
